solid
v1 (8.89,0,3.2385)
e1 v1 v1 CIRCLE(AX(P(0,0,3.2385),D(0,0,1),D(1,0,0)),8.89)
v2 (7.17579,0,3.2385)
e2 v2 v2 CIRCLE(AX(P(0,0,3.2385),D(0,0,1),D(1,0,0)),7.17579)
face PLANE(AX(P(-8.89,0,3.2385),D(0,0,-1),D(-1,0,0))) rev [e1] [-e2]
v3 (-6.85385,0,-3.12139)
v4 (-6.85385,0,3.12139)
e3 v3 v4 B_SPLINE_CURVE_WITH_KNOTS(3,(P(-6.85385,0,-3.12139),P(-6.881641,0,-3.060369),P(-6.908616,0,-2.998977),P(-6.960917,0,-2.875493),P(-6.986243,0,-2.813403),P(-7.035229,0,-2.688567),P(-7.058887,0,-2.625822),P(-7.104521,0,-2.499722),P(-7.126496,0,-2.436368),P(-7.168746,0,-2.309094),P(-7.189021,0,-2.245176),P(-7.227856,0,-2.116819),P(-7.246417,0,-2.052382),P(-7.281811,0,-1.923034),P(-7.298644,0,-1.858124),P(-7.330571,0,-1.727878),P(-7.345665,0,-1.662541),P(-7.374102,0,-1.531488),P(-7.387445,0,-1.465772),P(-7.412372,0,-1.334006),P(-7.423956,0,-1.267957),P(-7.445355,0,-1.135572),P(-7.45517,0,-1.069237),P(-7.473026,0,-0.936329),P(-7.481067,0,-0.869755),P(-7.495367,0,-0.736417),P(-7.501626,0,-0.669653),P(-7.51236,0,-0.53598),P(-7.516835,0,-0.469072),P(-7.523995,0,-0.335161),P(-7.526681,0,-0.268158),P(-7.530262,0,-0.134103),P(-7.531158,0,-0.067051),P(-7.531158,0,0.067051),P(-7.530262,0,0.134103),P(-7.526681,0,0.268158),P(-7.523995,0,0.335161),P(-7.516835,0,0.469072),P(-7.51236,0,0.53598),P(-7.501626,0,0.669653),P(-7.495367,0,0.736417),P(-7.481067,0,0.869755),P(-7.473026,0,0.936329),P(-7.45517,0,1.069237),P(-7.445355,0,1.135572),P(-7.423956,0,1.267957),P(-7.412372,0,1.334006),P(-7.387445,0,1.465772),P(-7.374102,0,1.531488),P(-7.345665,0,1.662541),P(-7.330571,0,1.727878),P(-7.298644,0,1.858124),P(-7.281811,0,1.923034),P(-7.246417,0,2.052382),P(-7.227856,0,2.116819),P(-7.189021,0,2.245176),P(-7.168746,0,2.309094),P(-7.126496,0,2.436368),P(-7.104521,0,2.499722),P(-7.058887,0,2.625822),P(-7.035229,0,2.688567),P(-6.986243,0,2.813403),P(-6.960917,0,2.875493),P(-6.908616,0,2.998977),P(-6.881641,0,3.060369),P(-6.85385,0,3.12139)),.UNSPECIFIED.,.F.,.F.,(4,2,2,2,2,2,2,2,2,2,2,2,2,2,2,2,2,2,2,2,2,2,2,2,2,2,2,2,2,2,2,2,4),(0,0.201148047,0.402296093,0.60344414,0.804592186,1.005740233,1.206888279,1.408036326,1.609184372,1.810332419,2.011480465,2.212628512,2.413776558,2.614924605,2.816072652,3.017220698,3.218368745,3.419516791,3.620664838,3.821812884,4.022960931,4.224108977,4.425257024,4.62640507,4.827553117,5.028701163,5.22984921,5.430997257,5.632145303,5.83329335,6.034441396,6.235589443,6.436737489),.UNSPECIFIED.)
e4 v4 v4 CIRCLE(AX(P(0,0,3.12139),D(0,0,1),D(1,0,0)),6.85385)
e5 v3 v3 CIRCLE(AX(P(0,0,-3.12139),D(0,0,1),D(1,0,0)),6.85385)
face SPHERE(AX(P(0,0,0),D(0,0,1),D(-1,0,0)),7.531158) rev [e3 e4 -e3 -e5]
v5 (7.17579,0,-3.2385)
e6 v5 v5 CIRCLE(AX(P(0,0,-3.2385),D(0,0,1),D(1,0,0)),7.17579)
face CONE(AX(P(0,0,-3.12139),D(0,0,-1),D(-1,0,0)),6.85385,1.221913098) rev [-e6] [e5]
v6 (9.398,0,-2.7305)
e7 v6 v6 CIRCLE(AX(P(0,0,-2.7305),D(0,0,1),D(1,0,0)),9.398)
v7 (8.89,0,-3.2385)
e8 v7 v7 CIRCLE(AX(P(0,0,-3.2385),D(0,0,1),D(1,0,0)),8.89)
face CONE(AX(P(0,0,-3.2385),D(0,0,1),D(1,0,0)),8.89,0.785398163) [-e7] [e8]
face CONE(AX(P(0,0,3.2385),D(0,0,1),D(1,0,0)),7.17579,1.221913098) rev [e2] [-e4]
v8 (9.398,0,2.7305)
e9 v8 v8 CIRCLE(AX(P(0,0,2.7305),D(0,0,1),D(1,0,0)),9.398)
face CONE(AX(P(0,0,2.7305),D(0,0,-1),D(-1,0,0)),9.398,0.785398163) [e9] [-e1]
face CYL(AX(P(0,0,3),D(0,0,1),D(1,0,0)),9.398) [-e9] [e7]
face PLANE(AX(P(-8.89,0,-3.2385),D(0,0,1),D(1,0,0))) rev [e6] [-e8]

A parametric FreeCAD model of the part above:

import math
import FreeCAD as App
import Part
import Sketcher
from FreeCAD import Vector
Q = App.Units.Quantity

doc = App.newDocument("Part")
params = doc.addObject("Spreadsheet::Sheet", "Params")
for row, (alias, value) in enumerate([
    ("sketch1_height", "0.215 in"),
    ("revolution_angle", "360 deg"),
], start=1):
    params.set(f"A{row}", alias)
    params.set(f"B{row}", "=" + value)
    params.setAlias(f"B{row}", alias)

body = doc.addObject("PartDesign::Body", "Body")

# Sketch on XZ plane
sketch1 = body.newObject("Sketcher::SketchObject", "Sketch")
sketch1.AttachmentSupport = (doc.getObject("XZ_Plane"), [""])
sketch1.MapMode = "FlatFace"
sketch1.addGeometry([
    Part.LineSegment(Vector(-9.398, -2.7305, 0), Vector(-9.398, 2.7305, 0)),  # 0
    Part.LineSegment(Vector(-9.398, 2.7305, 0), Vector(-8.89, 3.2385, 0)),  # 1
    Part.LineSegment(Vector(-8.89, 3.2385, 0), Vector(-7.17579, 3.2385, 0)),  # 2
    Part.LineSegment(Vector(-7.17579, 3.2385, 0), Vector(-6.85385, 3.12139, 0)),  # 3
    Part.ArcOfCircle(Part.Circle(Vector(0, 0, 0), Vector(0, 0, 1), 7.531158), math.radians(155.514465), math.radians(204.485535)),  # 4
    Part.LineSegment(Vector(-6.85385, -3.12139, 0), Vector(-7.17579, -3.2385, 0)),  # 5
    Part.LineSegment(Vector(-7.17579, -3.2385, 0), Vector(-8.89, -3.2385, 0)),  # 6
    Part.LineSegment(Vector(-8.89, -3.2385, 0), Vector(-9.398, -2.7305, 0)),  # 7
], False)
sketch1.addConstraint([
    Sketcher.Constraint("Coincident", 0, 2, 1, 1),
    Sketcher.Constraint("Coincident", 1, 2, 2, 1),
    Sketcher.Constraint("Coincident", 2, 2, 3, 1),
    Sketcher.Constraint("Coincident", 3, 2, 4, 1),
    Sketcher.Constraint("Coincident", 4, 2, 5, 1),
    Sketcher.Constraint("Coincident", 5, 2, 6, 1),
    Sketcher.Constraint("Coincident", 6, 2, 7, 1),
    Sketcher.Constraint("Coincident", 7, 2, 0, 1),
    Sketcher.Constraint("Vertical", 0),
    Sketcher.Constraint("Horizontal", 2),
    Sketcher.Constraint("Horizontal", 6),
    Sketcher.Constraint("Coincident", 4, 3, -1, 1),
    Sketcher.Constraint("Symmetric", 2, 2, 5, 2, -1),
    Sketcher.Constraint("Perpendicular", 1, 7),
    Sketcher.Constraint("Vertical", 3, 2, 4, 2),
    Sketcher.Constraint("Vertical", 1, 2, 6, 2),
    Sketcher.Constraint("Equal", 1, 7),
    Sketcher.Constraint("DistanceY", 0, 1, 0, 2, Q("0.215 in")),
    Sketcher.Constraint("DistanceX", 0, 2, -1, 1, Q("0.37 in")),
    Sketcher.Constraint("DistanceX", 1, 2, -1, 1, Q("0.35 in")),
    Sketcher.Constraint("Radius", 4, 7.531158),
    Sketcher.Constraint("DistanceX", 2, 1, 2, 2, 1.71421),
    Sketcher.Constraint("Distance", 3, 0.342579),
])
sketch1.setExpression("Constraints[17]", "Params.sketch1_height")
revolution = body.newObject("PartDesign::Revolution", "Revolution")
revolution.Profile = sketch1
revolution.ReferenceAxis = (sketch1, ["V_Axis"])
revolution.setExpression("Angle", "Params.revolution_angle")

doc.recompute()
